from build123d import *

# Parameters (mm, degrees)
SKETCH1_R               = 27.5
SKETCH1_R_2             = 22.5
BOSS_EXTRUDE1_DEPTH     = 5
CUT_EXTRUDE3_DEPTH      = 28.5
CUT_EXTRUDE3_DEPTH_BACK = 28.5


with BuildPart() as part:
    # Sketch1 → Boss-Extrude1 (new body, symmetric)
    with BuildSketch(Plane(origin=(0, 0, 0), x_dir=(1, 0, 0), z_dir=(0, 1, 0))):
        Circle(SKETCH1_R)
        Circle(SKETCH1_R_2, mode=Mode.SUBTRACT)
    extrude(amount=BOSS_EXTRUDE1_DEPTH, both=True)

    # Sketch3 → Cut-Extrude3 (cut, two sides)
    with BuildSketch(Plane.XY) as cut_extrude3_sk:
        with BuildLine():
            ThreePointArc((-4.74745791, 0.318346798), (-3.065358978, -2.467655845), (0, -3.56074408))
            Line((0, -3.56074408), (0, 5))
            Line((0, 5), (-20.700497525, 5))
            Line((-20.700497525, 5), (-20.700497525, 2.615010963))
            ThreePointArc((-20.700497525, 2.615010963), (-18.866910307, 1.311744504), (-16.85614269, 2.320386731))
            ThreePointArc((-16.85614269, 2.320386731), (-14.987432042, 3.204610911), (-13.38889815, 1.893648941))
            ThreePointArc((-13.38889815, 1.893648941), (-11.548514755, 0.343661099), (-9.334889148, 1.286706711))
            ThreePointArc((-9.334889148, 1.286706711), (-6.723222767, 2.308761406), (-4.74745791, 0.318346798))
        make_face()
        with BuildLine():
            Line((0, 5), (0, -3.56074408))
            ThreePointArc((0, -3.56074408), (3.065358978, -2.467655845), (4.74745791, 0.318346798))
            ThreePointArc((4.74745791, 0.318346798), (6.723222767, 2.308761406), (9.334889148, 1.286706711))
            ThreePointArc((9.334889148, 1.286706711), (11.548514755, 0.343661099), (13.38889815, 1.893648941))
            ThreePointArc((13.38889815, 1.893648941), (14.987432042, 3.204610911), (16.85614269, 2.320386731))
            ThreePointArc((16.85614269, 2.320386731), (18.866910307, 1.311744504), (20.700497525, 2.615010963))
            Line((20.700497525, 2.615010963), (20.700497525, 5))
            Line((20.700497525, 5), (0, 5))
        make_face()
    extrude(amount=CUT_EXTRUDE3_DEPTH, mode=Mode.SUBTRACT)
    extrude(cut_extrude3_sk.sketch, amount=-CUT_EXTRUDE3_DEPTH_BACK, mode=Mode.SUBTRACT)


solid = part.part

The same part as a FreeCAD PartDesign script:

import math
import FreeCAD as App
import Part
import Sketcher
from FreeCAD import Vector
Q = App.Units.Quantity

doc = App.newDocument("Part")
body = doc.addObject("PartDesign::Body", "Body")

sketch1 = body.newObject("Sketcher::SketchObject", "Sketch")
sketch1.AttachmentSupport = (doc.getObject("XZ_Plane"), [""])
sketch1.MapMode = "FlatFace"
sketch1.addGeometry([
    Part.Circle(Vector(0, 0, 0), Vector(0, 0, 1), 28),
    Part.Circle(Vector(0, 0, 0), Vector(0, 0, 1), 22),
], False)
sketch1.addConstraint([
    Sketcher.Constraint("Coincident", 0, 3, -1, 1),
    Sketcher.Constraint("Coincident", 1, 3, -1, 1),
    Sketcher.Constraint("Diameter", 0, Q("55 mm")),
    Sketcher.Constraint("Diameter", 1, Q("45 mm")),
])
pad1 = body.newObject("PartDesign::Pad", "Pad")
pad1.Profile = sketch1
pad1.Length = 10
pad1.Midplane = True

sketch2 = body.newObject("Sketcher::SketchObject", "Sketch001")
sketch2.AttachmentSupport = (doc.getObject("XY_Plane"), [""])
sketch2.MapMode = "FlatFace"
sketch2.addGeometry([
    Part.ArcOfCircle(Part.Circle(Vector(0, 1.3, 0), Vector(0, 0, 1), 4.8), math.radians(-169), math.radians(-90)),
    Part.ArcOfCircle(Part.Circle(Vector(0, 1.3, 0), Vector(0, 0, 1), 4.8), math.radians(-90), math.radians(-11)),
    Part.ArcOfCircle(Part.Circle(Vector(7.3, -0.2, 0), Vector(0, 0, 1), 2.6), math.radians(35), math.radians(169)),
    Part.ArcOfCircle(Part.Circle(Vector(11.2, 2.6, 0), Vector(0, 0, 1), 2.3), math.radians(-145), math.radians(-18)),
    Part.ArcOfCircle(Part.Circle(Vector(15.2, 1.3, 0), Vector(0, 0, 1), 1.9), math.radians(32), math.radians(162)),
    Part.ArcOfCircle(Part.Circle(Vector(18.7, 3.5, 0), Vector(0, 0, 1), 2.2), math.radians(-148), math.radians(-24)),
    Part.LineSegment(Vector(20.7, 2.6, 0), Vector(20.7, 5, 0)),
    Part.LineSegment(Vector(20.7, 5, 0), Vector(-20.7, 5, 0)),
    Part.LineSegment(Vector(-20.7, 5, 0), Vector(-20.7, 2.6, 0)),
    Part.ArcOfCircle(Part.Circle(Vector(-18.7, 3.5, 0), Vector(0, 0, 1), 2.2), math.radians(-156), math.radians(-32)),
    Part.ArcOfCircle(Part.Circle(Vector(-15.2, 1.3, 0), Vector(0, 0, 1), 1.9), math.radians(18), math.radians(148)),
    Part.ArcOfCircle(Part.Circle(Vector(-11.2, 2.6, 0), Vector(0, 0, 1), 2.3), math.radians(-162), math.radians(-35)),
    Part.ArcOfCircle(Part.Circle(Vector(-7.3, -0.2, 0), Vector(0, 0, 1), 2.6), math.radians(11), math.radians(145)),
], False)
sketch2.addConstraint([
    Sketcher.Constraint("Tangent", 0, 2, 1, 1),
    Sketcher.Constraint("Tangent", 1, 2, 2, 2),
    Sketcher.Constraint("Tangent", 2, 1, 3, 1),
    Sketcher.Constraint("Tangent", 3, 2, 4, 2),
    Sketcher.Constraint("Tangent", 4, 1, 5, 1),
    Sketcher.Constraint("Coincident", 5, 2, 6, 1),
    Sketcher.Constraint("Coincident", 6, 2, 7, 1),
    Sketcher.Constraint("Coincident", 7, 2, 8, 1),
    Sketcher.Constraint("Coincident", 8, 2, 9, 1),
    Sketcher.Constraint("Tangent", 9, 2, 10, 2),
    Sketcher.Constraint("Tangent", 10, 1, 11, 1),
    Sketcher.Constraint("Tangent", 11, 2, 12, 2),
    Sketcher.Constraint("Tangent", 12, 1, 0, 1),
    Sketcher.Constraint("Vertical", 6),
    Sketcher.Constraint("Horizontal", 7),
    Sketcher.Constraint("Vertical", 8),
    Sketcher.Constraint("Equal", 0, 1),
    Sketcher.Constraint("Equal", 5, 9),
    Sketcher.Constraint("Equal", 4, 10),
    Sketcher.Constraint("Equal", 3, 11),
    Sketcher.Constraint("Equal", 2, 12),
    Sketcher.Constraint("Symmetric", 5, 3, 9, 3, -2),
    Sketcher.Constraint("Symmetric", 3, 3, 11, 3, -2),
    Sketcher.Constraint("PointOnObject", 0, 3, -2),
    Sketcher.Constraint("PointOnObject", 0, 2, -2),
    Sketcher.Constraint("Horizontal", 10, 3, 2, 1),
    Sketcher.Constraint("Horizontal", 11, 3, 5, 2),
    Sketcher.Constraint("Horizontal", 5, 2, 8, 2),
    Sketcher.Constraint("DistanceY", -1, 1, 6, 2, Q("5 mm")),
    Sketcher.Constraint("Radius", 2, Q("2.554651 mm")),
    Sketcher.Constraint("Radius", 0, Q("4.844654 mm")),
    Sketcher.Constraint("Radius", 3, Q("2.296664 mm")),
    Sketcher.Constraint("Radius", 4, Q("1.932376 mm")),
    Sketcher.Constraint("Radius", 5, Q("2.182504 mm")),
    Sketcher.Constraint("DistanceY", 6, 1, 6, 2, Q("2.384989 mm")),
    Sketcher.Constraint("DistanceX", -1, 1, 3, 2, Q("13.388898 mm")),
    Sketcher.Constraint("DistanceY", 0, 3, 3, 3, Q("1.331102 mm")),
    Sketcher.Constraint("DistanceX", 9, 3, 3, 3, Q("29.908598 mm")),
])
pocket1 = body.newObject("PartDesign::Pocket", "Pocket")
pocket1.Profile = sketch2
pocket1.Type = "ThroughAll"
pocket1.Midplane = True

doc.recompute()
